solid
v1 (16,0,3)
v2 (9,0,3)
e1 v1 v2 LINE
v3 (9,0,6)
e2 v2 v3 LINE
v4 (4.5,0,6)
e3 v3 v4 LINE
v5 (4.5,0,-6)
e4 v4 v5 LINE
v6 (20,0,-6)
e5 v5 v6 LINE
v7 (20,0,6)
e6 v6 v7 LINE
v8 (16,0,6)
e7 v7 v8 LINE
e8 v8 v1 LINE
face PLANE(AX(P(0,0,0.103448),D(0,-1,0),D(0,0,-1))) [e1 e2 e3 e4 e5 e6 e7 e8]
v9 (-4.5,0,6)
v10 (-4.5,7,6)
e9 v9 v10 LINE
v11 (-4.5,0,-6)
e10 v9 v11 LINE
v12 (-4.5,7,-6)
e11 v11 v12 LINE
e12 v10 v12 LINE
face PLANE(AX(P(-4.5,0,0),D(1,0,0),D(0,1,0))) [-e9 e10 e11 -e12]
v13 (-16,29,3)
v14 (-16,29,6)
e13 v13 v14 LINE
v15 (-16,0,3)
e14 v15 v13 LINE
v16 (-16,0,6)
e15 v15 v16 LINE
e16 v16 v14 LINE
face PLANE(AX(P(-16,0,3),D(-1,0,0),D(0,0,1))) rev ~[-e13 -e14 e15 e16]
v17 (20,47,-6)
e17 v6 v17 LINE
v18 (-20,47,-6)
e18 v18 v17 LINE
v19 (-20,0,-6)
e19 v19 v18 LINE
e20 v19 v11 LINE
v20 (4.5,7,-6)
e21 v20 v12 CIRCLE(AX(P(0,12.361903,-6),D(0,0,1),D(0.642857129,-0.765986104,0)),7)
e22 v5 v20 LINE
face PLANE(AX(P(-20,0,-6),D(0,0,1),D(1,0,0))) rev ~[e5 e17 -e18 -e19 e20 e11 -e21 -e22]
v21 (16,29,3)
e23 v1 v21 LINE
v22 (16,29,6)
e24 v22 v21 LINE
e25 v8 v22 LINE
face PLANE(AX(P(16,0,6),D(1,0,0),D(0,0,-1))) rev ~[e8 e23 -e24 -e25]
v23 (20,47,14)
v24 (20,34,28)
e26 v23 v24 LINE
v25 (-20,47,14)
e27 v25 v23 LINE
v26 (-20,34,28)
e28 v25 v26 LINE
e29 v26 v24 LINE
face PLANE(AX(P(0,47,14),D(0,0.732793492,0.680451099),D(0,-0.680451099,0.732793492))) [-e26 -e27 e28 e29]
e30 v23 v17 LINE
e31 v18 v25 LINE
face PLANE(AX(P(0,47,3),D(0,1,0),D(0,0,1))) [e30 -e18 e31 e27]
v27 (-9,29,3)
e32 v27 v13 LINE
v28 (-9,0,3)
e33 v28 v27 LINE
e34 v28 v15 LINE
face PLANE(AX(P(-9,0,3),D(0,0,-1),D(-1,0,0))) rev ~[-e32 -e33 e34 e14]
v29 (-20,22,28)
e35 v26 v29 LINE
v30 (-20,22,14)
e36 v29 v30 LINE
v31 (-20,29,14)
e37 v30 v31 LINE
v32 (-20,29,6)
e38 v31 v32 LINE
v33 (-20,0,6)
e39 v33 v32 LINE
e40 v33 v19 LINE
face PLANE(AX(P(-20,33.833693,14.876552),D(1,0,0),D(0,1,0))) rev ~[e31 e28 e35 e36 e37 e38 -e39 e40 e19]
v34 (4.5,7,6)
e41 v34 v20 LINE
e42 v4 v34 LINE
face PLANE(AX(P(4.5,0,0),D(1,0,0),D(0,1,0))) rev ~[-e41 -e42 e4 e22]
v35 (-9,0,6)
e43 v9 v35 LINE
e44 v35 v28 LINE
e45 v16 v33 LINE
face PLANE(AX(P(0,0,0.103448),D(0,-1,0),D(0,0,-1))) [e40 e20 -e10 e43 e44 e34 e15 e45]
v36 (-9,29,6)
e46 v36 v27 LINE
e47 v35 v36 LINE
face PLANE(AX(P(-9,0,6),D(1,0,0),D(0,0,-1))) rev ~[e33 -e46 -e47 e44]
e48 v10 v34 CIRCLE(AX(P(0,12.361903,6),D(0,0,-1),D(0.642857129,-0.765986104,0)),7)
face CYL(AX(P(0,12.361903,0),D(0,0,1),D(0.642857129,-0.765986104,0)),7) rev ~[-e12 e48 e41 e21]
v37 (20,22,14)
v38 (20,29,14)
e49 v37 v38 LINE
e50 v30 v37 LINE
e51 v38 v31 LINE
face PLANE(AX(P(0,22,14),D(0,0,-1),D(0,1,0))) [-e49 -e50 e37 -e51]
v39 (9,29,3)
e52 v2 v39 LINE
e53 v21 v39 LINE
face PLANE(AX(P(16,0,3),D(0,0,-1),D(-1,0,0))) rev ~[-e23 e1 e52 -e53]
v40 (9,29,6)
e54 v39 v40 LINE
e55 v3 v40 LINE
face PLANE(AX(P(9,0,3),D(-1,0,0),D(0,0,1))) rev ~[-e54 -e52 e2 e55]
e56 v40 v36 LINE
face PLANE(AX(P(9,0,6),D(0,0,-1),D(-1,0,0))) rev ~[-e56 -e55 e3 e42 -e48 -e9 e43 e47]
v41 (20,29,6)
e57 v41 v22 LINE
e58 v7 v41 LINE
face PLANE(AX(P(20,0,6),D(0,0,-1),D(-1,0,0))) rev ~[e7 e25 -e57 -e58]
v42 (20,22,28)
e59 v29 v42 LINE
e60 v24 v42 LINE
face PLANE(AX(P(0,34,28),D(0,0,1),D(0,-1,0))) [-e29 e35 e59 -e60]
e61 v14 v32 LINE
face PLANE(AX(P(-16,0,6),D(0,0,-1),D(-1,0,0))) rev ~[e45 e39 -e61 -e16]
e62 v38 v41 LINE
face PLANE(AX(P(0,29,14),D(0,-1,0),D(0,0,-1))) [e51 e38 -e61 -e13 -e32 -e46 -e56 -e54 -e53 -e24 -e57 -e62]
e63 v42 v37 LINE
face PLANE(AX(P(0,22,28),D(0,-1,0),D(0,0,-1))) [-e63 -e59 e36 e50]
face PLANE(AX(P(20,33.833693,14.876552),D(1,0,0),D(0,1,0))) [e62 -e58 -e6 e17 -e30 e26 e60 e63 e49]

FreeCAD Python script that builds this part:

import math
import FreeCAD as App
import Part
import Sketcher
from FreeCAD import Vector
Q = App.Units.Quantity


def add_polygon(sketch, points):
    """Adds a closed chain of lines whose ends are joined by coincident constraints."""
    first, n = sketch.GeometryCount, len(points)
    for a, b in zip(points, points[1:] + points[:1]):
        sketch.addGeometry(Part.LineSegment(App.Vector(*a, 0), App.Vector(*b, 0)), False)
    for i in range(n):
        sketch.addConstraint(Sketcher.Constraint("Coincident", first + i, 2, first + (i + 1) % n, 1))

doc = App.newDocument("Part")
body = doc.addObject("PartDesign::Body", "Body")

# Sketch on XZ plane
sketch1 = body.newObject("Sketcher::SketchObject", "Sketch")
sketch1.AttachmentSupport = (doc.getObject("XZ_Plane"), [""])
sketch1.MapMode = "FlatFace"
add_polygon(sketch1, [(-20, 6), (-20, -6), (20, -6), (20, 6), (16, 6), (16, 3), (9, 3), (9, 6), (-9, 6), (-9, 3), (-16, 3), (-16, 6)])  # lines 0-11
sketch1.addConstraint(Sketcher.Constraint("Vertical", 0))
sketch1.addConstraint(Sketcher.Constraint("Horizontal", 1))
sketch1.addConstraint(Sketcher.Constraint("Vertical", 2))
sketch1.addConstraint(Sketcher.Constraint("Horizontal", 3))
sketch1.addConstraint(Sketcher.Constraint("Vertical", 4))
sketch1.addConstraint(Sketcher.Constraint("Horizontal", 5))
sketch1.addConstraint(Sketcher.Constraint("Vertical", 6))
sketch1.addConstraint(Sketcher.Constraint("Horizontal", 7))
sketch1.addConstraint(Sketcher.Constraint("Vertical", 8))
sketch1.addConstraint(Sketcher.Constraint("Horizontal", 9))
sketch1.addConstraint(Sketcher.Constraint("Vertical", 10))
sketch1.addConstraint(Sketcher.Constraint("Horizontal", 11))
sketch1.addConstraint(Sketcher.Constraint("Symmetric", 0, 2, 2, 2, -1, 1))
sketch1.addConstraint(Sketcher.Constraint("Symmetric", 5, 2, 8, 2, -2))
sketch1.addConstraint(Sketcher.Constraint("Symmetric", 3, 2, 10, 2, -2))
sketch1.addConstraint(Sketcher.Constraint("Horizontal", 3, 2, 6, 2))
sketch1.addConstraint(Sketcher.Constraint("DistanceX", 1, 1, 1, 2, Q("40 mm")))
sketch1.addConstraint(Sketcher.Constraint("DistanceX", 3, 2, 3, 1, Q("4 mm")))
sketch1.addConstraint(Sketcher.Constraint("DistanceX", 5, 2, 5, 1, Q("7 mm")))
sketch1.addConstraint(Sketcher.Constraint("DistanceY", 0, 2, 0, 1, Q("12 mm")))
sketch1.addConstraint(Sketcher.Constraint("DistanceY", 4, 2, 4, 1, Q("3 mm")))

# Sketch on XY plane
sketch2 = body.newObject("Sketcher::SketchObject", "Sketch001")
sketch2.AttachmentSupport = (doc.getObject("XY_Plane"), [""])
sketch2.MapMode = "FlatFace"
sketch2.addGeometry(Part.LineSegment(Vector(0, 0, 0), Vector(0, 47, 0)), False)
sketch2.addConstraint(Sketcher.Constraint("Vertical", 0))
sketch2.addConstraint(Sketcher.Constraint("Coincident", 0, 1, -1, 1))
sketch2.addConstraint(Sketcher.Constraint("DistanceY", 0, 1, 0, 2, Q("47 mm")))
doc.recompute()

additivepipe = body.newObject("PartDesign::AdditivePipe", "AdditivePipe")
additivepipe.Profile = sketch1
additivepipe.Spine = (sketch2, ["Edge1"])

# Sketch on YZ plane
sketch3 = body.newObject("Sketcher::SketchObject", "Sketch002")
sketch3.AttachmentSupport = (doc.getObject("YZ_Plane"), [""])
sketch3.MapMode = "FlatFace"
add_polygon(sketch3, [(47, 3), (47, 14), (34, 28), (22, 28), (22, 14), (29, 14), (29, 3)])  # lines 0-6
sketch3.addConstraint(Sketcher.Constraint("Vertical", 0))
sketch3.addConstraint(Sketcher.Constraint("Horizontal", 2))
sketch3.addConstraint(Sketcher.Constraint("Vertical", 3))
sketch3.addConstraint(Sketcher.Constraint("Horizontal", 4))
sketch3.addConstraint(Sketcher.Constraint("Vertical", 5))
sketch3.addConstraint(Sketcher.Constraint("Horizontal", 6))
sketch3.addConstraint(Sketcher.Constraint("Horizontal", 0, 2, 3, 2))
sketch3.addConstraint(Sketcher.Constraint("DistanceX", 2, 2, 2, 1, Q("12 mm")))
sketch3.addConstraint(Sketcher.Constraint("DistanceX", 4, 1, 4, 2, Q("7 mm")))
sketch3.addConstraint(Sketcher.Constraint("DistanceX", 6, 1, 6, 2, Q("18 mm")))
sketch3.addConstraint(Sketcher.Constraint("DistanceY", 0, 1, 0, 2, Q("11 mm")))
sketch3.addConstraint(Sketcher.Constraint("DistanceY", 3, 2, 3, 1, Q("14 mm")))
sketch3.addConstraint(Sketcher.Constraint("DistanceX", -1, 1, 0, 2, Q("47 mm")))
sketch3.addConstraint(Sketcher.Constraint("DistanceY", -1, 1, 0, 2, Q("14 mm")))
pad1 = body.newObject("PartDesign::Pad", "Pad")
pad1.Profile = sketch3
pad1.Length = 40
pad1.Midplane = True

# Sketch on XY plane
sketch4 = body.newObject("Sketcher::SketchObject", "Sketch003")
sketch4.AttachmentSupport = (doc.getObject("XY_Plane"), [""])
sketch4.MapMode = "FlatFace"
sketch4.addGeometry(Part.LineSegment(Vector(-4, 0, 0), Vector(4, 0, 0)), False)
sketch4.addGeometry(Part.LineSegment(Vector(4, 0, 0), Vector(4, 7, 0)), False)
sketch4.addGeometry(Part.ArcOfCircle(Part.Circle(Vector(0, 12, 0), Vector(0, 0, 1), 7), math.radians(-50), math.radians(230)), False)
sketch4.addGeometry(Part.LineSegment(Vector(-4, 7, 0), Vector(-4, 0, 0)), False)
sketch4.addConstraint(Sketcher.Constraint("Coincident", 0, 2, 1, 1))
sketch4.addConstraint(Sketcher.Constraint("Coincident", 1, 2, 2, 1))
sketch4.addConstraint(Sketcher.Constraint("Coincident", 2, 2, 3, 1))
sketch4.addConstraint(Sketcher.Constraint("Coincident", 3, 2, 0, 1))
sketch4.addConstraint(Sketcher.Constraint("Horizontal", 0))
sketch4.addConstraint(Sketcher.Constraint("Vertical", 1))
sketch4.addConstraint(Sketcher.Constraint("Vertical", 3))
sketch4.addConstraint(Sketcher.Constraint("Symmetric", 0, 2, 3, 2, -1, 1))
sketch4.addConstraint(Sketcher.Constraint("PointOnObject", 2, 3, -2))
sketch4.addConstraint(Sketcher.Constraint("Radius", 2, Q("7 mm")))
sketch4.addConstraint(Sketcher.Constraint("DistanceX", 0, 1, 0, 2, Q("9 mm")))
sketch4.addConstraint(Sketcher.Constraint("DistanceY", 1, 1, 1, 2, Q("7 mm")))
pocket1 = body.newObject("PartDesign::Pocket", "Pocket")
pocket1.Profile = sketch4
pocket1.Type = "ThroughAll"
pocket1.Midplane = True

doc.recompute()
